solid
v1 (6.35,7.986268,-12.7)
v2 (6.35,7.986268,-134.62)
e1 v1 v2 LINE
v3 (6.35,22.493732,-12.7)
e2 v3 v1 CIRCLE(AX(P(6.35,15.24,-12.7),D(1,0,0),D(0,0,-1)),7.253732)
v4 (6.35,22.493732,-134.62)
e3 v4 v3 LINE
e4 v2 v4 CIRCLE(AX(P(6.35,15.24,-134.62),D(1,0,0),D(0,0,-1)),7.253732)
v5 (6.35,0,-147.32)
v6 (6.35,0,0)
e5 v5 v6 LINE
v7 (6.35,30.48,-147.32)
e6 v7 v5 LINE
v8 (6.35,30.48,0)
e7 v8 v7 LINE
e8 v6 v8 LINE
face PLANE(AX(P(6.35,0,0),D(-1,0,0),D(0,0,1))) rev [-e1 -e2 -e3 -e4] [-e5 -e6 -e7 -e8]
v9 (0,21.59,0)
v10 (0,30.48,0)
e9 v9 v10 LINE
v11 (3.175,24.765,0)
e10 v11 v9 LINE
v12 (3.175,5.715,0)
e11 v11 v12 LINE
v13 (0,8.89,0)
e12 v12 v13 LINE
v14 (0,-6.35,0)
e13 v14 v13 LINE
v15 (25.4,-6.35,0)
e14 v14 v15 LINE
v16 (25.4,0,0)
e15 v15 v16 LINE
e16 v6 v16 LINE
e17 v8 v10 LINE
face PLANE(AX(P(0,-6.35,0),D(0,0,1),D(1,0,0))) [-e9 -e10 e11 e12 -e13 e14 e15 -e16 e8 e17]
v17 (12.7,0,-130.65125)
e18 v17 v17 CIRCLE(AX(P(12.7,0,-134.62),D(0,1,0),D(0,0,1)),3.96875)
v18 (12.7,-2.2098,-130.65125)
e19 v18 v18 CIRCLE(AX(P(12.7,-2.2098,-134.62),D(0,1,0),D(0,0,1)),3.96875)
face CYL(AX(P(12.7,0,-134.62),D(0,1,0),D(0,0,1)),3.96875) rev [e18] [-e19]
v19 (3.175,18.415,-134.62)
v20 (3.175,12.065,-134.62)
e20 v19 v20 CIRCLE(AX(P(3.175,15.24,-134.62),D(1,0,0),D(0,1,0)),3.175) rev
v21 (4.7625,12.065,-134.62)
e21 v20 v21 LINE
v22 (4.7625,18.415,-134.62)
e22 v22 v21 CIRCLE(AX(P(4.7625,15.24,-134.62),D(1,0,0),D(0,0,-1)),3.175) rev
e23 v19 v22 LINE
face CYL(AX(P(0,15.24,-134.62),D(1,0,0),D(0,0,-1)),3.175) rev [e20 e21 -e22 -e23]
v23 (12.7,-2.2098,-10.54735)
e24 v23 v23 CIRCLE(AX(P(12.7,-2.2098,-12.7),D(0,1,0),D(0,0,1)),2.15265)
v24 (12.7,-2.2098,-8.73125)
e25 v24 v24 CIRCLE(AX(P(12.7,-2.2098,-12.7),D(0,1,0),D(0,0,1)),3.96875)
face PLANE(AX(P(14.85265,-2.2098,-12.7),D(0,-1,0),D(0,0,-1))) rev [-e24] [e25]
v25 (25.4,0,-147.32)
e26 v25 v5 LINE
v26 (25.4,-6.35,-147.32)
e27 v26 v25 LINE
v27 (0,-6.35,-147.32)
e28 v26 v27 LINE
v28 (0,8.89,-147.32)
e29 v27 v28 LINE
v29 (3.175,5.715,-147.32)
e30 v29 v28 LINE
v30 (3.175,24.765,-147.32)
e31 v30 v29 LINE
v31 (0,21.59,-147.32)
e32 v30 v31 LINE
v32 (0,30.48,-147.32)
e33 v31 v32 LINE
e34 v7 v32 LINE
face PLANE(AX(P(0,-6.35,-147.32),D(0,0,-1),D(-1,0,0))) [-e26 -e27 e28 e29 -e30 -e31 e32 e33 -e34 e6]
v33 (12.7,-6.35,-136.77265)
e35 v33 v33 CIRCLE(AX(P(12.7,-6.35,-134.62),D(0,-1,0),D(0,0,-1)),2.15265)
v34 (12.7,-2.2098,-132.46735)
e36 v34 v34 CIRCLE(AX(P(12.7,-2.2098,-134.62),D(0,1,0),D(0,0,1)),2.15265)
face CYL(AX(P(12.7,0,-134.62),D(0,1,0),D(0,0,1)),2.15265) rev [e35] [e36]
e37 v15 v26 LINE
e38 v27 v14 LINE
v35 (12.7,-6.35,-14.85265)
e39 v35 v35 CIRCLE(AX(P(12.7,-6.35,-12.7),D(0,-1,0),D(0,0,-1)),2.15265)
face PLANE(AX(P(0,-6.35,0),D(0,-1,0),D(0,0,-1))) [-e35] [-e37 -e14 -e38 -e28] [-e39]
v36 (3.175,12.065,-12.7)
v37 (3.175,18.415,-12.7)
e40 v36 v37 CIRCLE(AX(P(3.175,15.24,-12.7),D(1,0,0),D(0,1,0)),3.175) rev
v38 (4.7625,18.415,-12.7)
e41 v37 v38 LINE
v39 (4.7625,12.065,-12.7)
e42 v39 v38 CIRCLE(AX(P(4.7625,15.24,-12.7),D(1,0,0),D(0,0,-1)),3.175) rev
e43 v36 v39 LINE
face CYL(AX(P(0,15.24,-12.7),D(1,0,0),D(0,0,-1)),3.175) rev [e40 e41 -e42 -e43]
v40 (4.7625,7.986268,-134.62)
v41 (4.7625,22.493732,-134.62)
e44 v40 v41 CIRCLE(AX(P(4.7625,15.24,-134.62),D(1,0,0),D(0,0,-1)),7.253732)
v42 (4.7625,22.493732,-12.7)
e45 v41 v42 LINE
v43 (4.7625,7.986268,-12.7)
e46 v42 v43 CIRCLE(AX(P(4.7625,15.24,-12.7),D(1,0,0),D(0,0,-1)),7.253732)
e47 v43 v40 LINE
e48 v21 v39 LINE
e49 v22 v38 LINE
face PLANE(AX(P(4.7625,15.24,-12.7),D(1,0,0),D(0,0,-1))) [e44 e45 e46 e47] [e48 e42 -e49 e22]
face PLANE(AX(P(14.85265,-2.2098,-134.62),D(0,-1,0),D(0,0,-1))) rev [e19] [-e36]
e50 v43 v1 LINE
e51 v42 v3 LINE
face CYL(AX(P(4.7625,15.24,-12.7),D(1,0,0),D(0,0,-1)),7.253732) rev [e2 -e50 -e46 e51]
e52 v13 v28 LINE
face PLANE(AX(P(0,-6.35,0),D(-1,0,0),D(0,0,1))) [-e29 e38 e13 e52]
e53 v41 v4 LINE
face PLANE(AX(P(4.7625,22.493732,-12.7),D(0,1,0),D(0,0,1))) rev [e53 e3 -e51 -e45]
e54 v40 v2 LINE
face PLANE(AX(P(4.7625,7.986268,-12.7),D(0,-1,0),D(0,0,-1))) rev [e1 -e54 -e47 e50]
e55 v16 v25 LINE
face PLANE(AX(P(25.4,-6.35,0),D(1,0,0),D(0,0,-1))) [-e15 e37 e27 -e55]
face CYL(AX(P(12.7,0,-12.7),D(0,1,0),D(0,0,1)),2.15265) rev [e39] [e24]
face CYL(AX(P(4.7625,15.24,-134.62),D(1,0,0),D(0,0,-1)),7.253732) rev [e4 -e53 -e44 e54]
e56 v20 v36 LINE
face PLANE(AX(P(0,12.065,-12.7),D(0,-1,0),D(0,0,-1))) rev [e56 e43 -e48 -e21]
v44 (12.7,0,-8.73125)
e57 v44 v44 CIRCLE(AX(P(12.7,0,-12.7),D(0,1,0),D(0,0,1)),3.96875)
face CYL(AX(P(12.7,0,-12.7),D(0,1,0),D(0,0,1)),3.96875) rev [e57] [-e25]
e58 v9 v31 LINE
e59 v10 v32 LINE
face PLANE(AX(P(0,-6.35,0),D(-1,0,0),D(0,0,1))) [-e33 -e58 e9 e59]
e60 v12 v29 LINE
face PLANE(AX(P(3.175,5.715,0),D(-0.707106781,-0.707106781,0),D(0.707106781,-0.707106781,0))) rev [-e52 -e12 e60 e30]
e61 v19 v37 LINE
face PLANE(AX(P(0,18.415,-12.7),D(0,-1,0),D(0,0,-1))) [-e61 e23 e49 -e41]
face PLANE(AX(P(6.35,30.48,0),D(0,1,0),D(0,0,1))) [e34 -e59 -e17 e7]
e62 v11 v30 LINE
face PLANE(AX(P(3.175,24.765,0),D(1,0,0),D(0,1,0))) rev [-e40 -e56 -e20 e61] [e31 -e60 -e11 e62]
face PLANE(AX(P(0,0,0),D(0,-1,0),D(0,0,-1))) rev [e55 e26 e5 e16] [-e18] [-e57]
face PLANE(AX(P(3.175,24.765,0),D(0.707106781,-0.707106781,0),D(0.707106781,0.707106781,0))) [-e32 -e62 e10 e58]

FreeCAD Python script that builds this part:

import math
import FreeCAD as App
import Part
import Sketcher

V = App.Vector
Q = App.Units.Quantity

doc = App.newDocument("Part")
body = doc.addObject("PartDesign::Body", "Body")

sketch1 = body.newObject("Sketcher::SketchObject", "Sketch")
sketch1.AttachmentSupport = (doc.getObject("XZ_Plane"), [""])
sketch1.MapMode = "FlatFace"
sketch1.addGeometry(Part.LineSegment(V(0, -147, 0), V(0, 0, 0)), False)
sketch1.addGeometry(Part.LineSegment(V(0, 0, 0), V(25, 0, 0)), False)
sketch1.addGeometry(Part.LineSegment(V(25, 0, 0), V(25, -147, 0)), False)
sketch1.addGeometry(Part.LineSegment(V(25, -147, 0), V(0, -147, 0)), False)
sketch1.addConstraint(Sketcher.Constraint("Coincident", 0, 2, 1, 1))
sketch1.addConstraint(Sketcher.Constraint("Coincident", 1, 2, 2, 1))
sketch1.addConstraint(Sketcher.Constraint("Coincident", 2, 2, 3, 1))
sketch1.addConstraint(Sketcher.Constraint("Coincident", 3, 2, 0, 1))
sketch1.addConstraint(Sketcher.Constraint("Vertical", 0))
sketch1.addConstraint(Sketcher.Constraint("Horizontal", 1))
sketch1.addConstraint(Sketcher.Constraint("Vertical", 2))
sketch1.addConstraint(Sketcher.Constraint("Horizontal", 3))
sketch1.addConstraint(Sketcher.Constraint("Coincident", 0, 2, -1, 1))
sketch1.addConstraint(Sketcher.Constraint("DistanceX", 1, 1, 1, 2, Q("1 in")))
sketch1.addConstraint(Sketcher.Constraint("DistanceY", 0, 1, 0, 2, Q("5.8 in")))
pad1 = body.newObject("PartDesign::Pad", "Pad")
pad1.Profile = sketch1
pad1.Length = Q("0.25 in")

sketch2 = body.newObject("Sketcher::SketchObject", "Sketch001")
sketch2.AttachmentSupport = (doc.getObject("YZ_Plane"), [""])
sketch2.MapMode = "FlatFace"
sketch2.addGeometry(Part.LineSegment(V(30, -147, 0), V(0, -147, 0)), False)
sketch2.addGeometry(Part.LineSegment(V(0, -147, 0), V(0, 0, 0)), False)
sketch2.addGeometry(Part.LineSegment(V(0, 0, 0), V(30, 0, 0)), False)
sketch2.addGeometry(Part.LineSegment(V(30, 0, 0), V(30, -147, 0)), False)
sketch2.addConstraint(Sketcher.Constraint("Coincident", 0, 2, 1, 1))
sketch2.addConstraint(Sketcher.Constraint("Coincident", 1, 2, 2, 1))
sketch2.addConstraint(Sketcher.Constraint("Coincident", 2, 2, 3, 1))
sketch2.addConstraint(Sketcher.Constraint("Coincident", 3, 2, 0, 1))
sketch2.addConstraint(Sketcher.Constraint("Horizontal", 0))
sketch2.addConstraint(Sketcher.Constraint("Vertical", 1))
sketch2.addConstraint(Sketcher.Constraint("Horizontal", 2))
sketch2.addConstraint(Sketcher.Constraint("Vertical", 3))
sketch2.addConstraint(Sketcher.Constraint("Coincident", 1, 2, -1, 1))
sketch2.addConstraint(Sketcher.Constraint("DistanceX", 0, 2, 0, 1, Q("1.2 in")))
sketch2.addConstraint(Sketcher.Constraint("DistanceY", 1, 1, 1, 2, Q("5.8 in")))
pad2 = body.newObject("PartDesign::Pad", "Pad001")
pad2.Profile = sketch2
pad2.Length = Q("0.25 in")

sketch3 = body.newObject("Sketcher::SketchObject", "Sketch002")
sketch3.AttachmentSupport = (doc.getObject("XZ_Plane"), [""])
sketch3.MapMode = "FlatFace"
sketch3.addGeometry(Part.Circle(V(12.7, -12.7, 0), V(0, 0, 1), 2.2), False)
sketch3.addGeometry(Part.Circle(V(12.7, -134.6, 0), V(0, 0, 1), 2.2), False)
sketch3.addConstraint(Sketcher.Constraint("Equal", 0, 1))
sketch3.addConstraint(Sketcher.Constraint("Vertical", 0, 3, 1, 3))
sketch3.addConstraint(Sketcher.Constraint("Diameter", 0, Q("0.1695 in")))
sketch3.addConstraint(Sketcher.Constraint("DistanceX", -1, 1, 0, 3, Q("0.5 in")))
sketch3.addConstraint(Sketcher.Constraint("DistanceY", 0, 3, -1, 1, Q("0.5 in")))
sketch3.addConstraint(Sketcher.Constraint("DistanceY", 1, 3, -1, 1, Q("5.3 in")))
doc.recompute()
hole = body.newObject("PartDesign::Hole", "Hole")
hole.Profile = sketch3
hole.ThreadType = "None"
hole.Diameter = Q("0.1695 in")
hole.DepthType = "ThroughAll"
hole.HoleCutType = "Counterbore"
hole.HoleCutDiameter = Q("0.3125 in")
hole.HoleCutDepth = Q("0.087 in")
hole.Reversed = True

sketch4 = body.newObject("Sketcher::SketchObject", "Sketch003")
sketch4.AttachmentSupport = (doc.getObject("YZ_Plane"), [""])
sketch4.MapMode = "FlatFace"
sketch4.AttachmentOffset = App.Placement(V(0, 0, 0.25 * 25.4), App.Rotation())
sketch4.addGeometry(Part.LineSegment(V(18.4, -134.6, 0), V(18.4, -12.7, 0)), False)
sketch4.addGeometry(Part.ArcOfCircle(Part.Circle(V(15.2, -12.7, 0), V(0, 0, 1), 3.2), math.radians(0), math.radians(180)), False)
sketch4.addGeometry(Part.LineSegment(V(12.1, -12.7, 0), V(12.1, -134.6, 0)), False)
sketch4.addGeometry(Part.ArcOfCircle(Part.Circle(V(15.2, -134.6, 0), V(0, 0, 1), 3.2), math.radians(180), math.radians(360)), False)
sketch4.addConstraint(Sketcher.Constraint("Tangent", 0, 2, 1, 1))
sketch4.addConstraint(Sketcher.Constraint("Tangent", 1, 2, 2, 1))
sketch4.addConstraint(Sketcher.Constraint("Tangent", 2, 2, 3, 1))
sketch4.addConstraint(Sketcher.Constraint("Tangent", 3, 2, 0, 1))
sketch4.addConstraint(Sketcher.Constraint("Vertical", 0))
sketch4.addConstraint(Sketcher.Constraint("Vertical", 2))
sketch4.addConstraint(Sketcher.Constraint("DistanceY", 0, 1, 0, 2, Q("4.8 in")))
sketch4.addConstraint(Sketcher.Constraint("Radius", 1, Q("0.125 in")))
sketch4.addConstraint(Sketcher.Constraint("DistanceX", -1, 1, 1, 3, Q("0.6 in")))
sketch4.addConstraint(Sketcher.Constraint("DistanceY", 1, 3, -1, 1, Q("0.5 in")))
pocket1 = body.newObject("PartDesign::Pocket", "Pocket")
pocket1.Profile = sketch4
pocket1.Type = "ThroughAll"

sketch5 = body.newObject("Sketcher::SketchObject", "Sketch004")
sketch5.AttachmentSupport = (doc.getObject("YZ_Plane"), [""])
sketch5.MapMode = "FlatFace"
sketch5.AttachmentOffset = App.Placement(V(0, 0, 0.25 * 25.4), App.Rotation())
sketch5.addGeometry(Part.LineSegment(V(22, -135, 0), V(22, -13, 0)), False)
sketch5.addGeometry(Part.ArcOfCircle(Part.Circle(V(15, -13, 0), V(0, 0, 1), 7), math.radians(0), math.radians(180)), False)
sketch5.addGeometry(Part.LineSegment(V(8, -13, 0), V(8, -135, 0)), False)
sketch5.addGeometry(Part.ArcOfCircle(Part.Circle(V(15, -135, 0), V(0, 0, 1), 7), math.radians(180), math.radians(360)), False)
sketch5.addConstraint(Sketcher.Constraint("Tangent", 0, 2, 1, 1))
sketch5.addConstraint(Sketcher.Constraint("Tangent", 1, 2, 2, 1))
sketch5.addConstraint(Sketcher.Constraint("Tangent", 2, 2, 3, 1))
sketch5.addConstraint(Sketcher.Constraint("Tangent", 3, 2, 0, 1))
sketch5.addConstraint(Sketcher.Constraint("Vertical", 0))
sketch5.addConstraint(Sketcher.Constraint("Vertical", 2))
sketch5.addConstraint(Sketcher.Constraint("DistanceY", 0, 1, 0, 2, Q("4.8 in")))
sketch5.addConstraint(Sketcher.Constraint("DistanceX", -1, 1, 1, 3, Q("0.6 in")))
sketch5.addConstraint(Sketcher.Constraint("DistanceY", 1, 3, -1, 1, Q("0.5 in")))
sketch5.addConstraint(Sketcher.Constraint("Radius", 1, Q("7.253732 mm")))
pocket2 = body.newObject("PartDesign::Pocket", "Pocket001")
pocket2.Profile = sketch5
pocket2.Length = Q("0.0625 in")

sketch6 = body.newObject("Sketcher::SketchObject", "Sketch005")
sketch6.AttachmentSupport = (doc.getObject("XY_Plane"), [""])
sketch6.MapMode = "FlatFace"
sketch6.AttachmentOffset = App.Placement(V(0, 0, -5.8 * 25.4), App.Rotation())
sketch6.addGeometry(Part.LineSegment(V(0, 8.9, 0), V(0, 21.6, 0)), False)
sketch6.addGeometry(Part.LineSegment(V(0, 21.6, 0), V(3.2, 24.8, 0)), False)
sketch6.addGeometry(Part.LineSegment(V(3.2, 24.8, 0), V(3.2, 5.7, 0)), False)
sketch6.addGeometry(Part.LineSegment(V(3.2, 5.7, 0), V(0, 8.9, 0)), False)
sketch6.addConstraint(Sketcher.Constraint("Coincident", 0, 2, 1, 1))
sketch6.addConstraint(Sketcher.Constraint("Coincident", 1, 2, 2, 1))
sketch6.addConstraint(Sketcher.Constraint("Coincident", 2, 2, 3, 1))
sketch6.addConstraint(Sketcher.Constraint("Coincident", 3, 2, 0, 1))
sketch6.addConstraint(Sketcher.Constraint("Vertical", 0))
sketch6.addConstraint(Sketcher.Constraint("Vertical", 2))
sketch6.addConstraint(Sketcher.Constraint("PointOnObject", 0, 2, -2))
sketch6.addConstraint(Sketcher.Constraint("Perpendicular", 1, 3))
sketch6.addConstraint(Sketcher.Constraint("Equal", 1, 3))
sketch6.addConstraint(Sketcher.Constraint("DistanceY", 0, 1, 0, 2, Q("0.5 in")))
sketch6.addConstraint(Sketcher.Constraint("DistanceY", 2, 2, 2, 1, Q("0.75 in")))
sketch6.addConstraint(Sketcher.Constraint("DistanceY", -1, 1, 0, 2, Q("0.85 in")))
pocket3 = body.newObject("PartDesign::Pocket", "Pocket002")
pocket3.Profile = sketch6
pocket3.Type = "ThroughAll"
pocket3.Reversed = True

doc.recompute()
